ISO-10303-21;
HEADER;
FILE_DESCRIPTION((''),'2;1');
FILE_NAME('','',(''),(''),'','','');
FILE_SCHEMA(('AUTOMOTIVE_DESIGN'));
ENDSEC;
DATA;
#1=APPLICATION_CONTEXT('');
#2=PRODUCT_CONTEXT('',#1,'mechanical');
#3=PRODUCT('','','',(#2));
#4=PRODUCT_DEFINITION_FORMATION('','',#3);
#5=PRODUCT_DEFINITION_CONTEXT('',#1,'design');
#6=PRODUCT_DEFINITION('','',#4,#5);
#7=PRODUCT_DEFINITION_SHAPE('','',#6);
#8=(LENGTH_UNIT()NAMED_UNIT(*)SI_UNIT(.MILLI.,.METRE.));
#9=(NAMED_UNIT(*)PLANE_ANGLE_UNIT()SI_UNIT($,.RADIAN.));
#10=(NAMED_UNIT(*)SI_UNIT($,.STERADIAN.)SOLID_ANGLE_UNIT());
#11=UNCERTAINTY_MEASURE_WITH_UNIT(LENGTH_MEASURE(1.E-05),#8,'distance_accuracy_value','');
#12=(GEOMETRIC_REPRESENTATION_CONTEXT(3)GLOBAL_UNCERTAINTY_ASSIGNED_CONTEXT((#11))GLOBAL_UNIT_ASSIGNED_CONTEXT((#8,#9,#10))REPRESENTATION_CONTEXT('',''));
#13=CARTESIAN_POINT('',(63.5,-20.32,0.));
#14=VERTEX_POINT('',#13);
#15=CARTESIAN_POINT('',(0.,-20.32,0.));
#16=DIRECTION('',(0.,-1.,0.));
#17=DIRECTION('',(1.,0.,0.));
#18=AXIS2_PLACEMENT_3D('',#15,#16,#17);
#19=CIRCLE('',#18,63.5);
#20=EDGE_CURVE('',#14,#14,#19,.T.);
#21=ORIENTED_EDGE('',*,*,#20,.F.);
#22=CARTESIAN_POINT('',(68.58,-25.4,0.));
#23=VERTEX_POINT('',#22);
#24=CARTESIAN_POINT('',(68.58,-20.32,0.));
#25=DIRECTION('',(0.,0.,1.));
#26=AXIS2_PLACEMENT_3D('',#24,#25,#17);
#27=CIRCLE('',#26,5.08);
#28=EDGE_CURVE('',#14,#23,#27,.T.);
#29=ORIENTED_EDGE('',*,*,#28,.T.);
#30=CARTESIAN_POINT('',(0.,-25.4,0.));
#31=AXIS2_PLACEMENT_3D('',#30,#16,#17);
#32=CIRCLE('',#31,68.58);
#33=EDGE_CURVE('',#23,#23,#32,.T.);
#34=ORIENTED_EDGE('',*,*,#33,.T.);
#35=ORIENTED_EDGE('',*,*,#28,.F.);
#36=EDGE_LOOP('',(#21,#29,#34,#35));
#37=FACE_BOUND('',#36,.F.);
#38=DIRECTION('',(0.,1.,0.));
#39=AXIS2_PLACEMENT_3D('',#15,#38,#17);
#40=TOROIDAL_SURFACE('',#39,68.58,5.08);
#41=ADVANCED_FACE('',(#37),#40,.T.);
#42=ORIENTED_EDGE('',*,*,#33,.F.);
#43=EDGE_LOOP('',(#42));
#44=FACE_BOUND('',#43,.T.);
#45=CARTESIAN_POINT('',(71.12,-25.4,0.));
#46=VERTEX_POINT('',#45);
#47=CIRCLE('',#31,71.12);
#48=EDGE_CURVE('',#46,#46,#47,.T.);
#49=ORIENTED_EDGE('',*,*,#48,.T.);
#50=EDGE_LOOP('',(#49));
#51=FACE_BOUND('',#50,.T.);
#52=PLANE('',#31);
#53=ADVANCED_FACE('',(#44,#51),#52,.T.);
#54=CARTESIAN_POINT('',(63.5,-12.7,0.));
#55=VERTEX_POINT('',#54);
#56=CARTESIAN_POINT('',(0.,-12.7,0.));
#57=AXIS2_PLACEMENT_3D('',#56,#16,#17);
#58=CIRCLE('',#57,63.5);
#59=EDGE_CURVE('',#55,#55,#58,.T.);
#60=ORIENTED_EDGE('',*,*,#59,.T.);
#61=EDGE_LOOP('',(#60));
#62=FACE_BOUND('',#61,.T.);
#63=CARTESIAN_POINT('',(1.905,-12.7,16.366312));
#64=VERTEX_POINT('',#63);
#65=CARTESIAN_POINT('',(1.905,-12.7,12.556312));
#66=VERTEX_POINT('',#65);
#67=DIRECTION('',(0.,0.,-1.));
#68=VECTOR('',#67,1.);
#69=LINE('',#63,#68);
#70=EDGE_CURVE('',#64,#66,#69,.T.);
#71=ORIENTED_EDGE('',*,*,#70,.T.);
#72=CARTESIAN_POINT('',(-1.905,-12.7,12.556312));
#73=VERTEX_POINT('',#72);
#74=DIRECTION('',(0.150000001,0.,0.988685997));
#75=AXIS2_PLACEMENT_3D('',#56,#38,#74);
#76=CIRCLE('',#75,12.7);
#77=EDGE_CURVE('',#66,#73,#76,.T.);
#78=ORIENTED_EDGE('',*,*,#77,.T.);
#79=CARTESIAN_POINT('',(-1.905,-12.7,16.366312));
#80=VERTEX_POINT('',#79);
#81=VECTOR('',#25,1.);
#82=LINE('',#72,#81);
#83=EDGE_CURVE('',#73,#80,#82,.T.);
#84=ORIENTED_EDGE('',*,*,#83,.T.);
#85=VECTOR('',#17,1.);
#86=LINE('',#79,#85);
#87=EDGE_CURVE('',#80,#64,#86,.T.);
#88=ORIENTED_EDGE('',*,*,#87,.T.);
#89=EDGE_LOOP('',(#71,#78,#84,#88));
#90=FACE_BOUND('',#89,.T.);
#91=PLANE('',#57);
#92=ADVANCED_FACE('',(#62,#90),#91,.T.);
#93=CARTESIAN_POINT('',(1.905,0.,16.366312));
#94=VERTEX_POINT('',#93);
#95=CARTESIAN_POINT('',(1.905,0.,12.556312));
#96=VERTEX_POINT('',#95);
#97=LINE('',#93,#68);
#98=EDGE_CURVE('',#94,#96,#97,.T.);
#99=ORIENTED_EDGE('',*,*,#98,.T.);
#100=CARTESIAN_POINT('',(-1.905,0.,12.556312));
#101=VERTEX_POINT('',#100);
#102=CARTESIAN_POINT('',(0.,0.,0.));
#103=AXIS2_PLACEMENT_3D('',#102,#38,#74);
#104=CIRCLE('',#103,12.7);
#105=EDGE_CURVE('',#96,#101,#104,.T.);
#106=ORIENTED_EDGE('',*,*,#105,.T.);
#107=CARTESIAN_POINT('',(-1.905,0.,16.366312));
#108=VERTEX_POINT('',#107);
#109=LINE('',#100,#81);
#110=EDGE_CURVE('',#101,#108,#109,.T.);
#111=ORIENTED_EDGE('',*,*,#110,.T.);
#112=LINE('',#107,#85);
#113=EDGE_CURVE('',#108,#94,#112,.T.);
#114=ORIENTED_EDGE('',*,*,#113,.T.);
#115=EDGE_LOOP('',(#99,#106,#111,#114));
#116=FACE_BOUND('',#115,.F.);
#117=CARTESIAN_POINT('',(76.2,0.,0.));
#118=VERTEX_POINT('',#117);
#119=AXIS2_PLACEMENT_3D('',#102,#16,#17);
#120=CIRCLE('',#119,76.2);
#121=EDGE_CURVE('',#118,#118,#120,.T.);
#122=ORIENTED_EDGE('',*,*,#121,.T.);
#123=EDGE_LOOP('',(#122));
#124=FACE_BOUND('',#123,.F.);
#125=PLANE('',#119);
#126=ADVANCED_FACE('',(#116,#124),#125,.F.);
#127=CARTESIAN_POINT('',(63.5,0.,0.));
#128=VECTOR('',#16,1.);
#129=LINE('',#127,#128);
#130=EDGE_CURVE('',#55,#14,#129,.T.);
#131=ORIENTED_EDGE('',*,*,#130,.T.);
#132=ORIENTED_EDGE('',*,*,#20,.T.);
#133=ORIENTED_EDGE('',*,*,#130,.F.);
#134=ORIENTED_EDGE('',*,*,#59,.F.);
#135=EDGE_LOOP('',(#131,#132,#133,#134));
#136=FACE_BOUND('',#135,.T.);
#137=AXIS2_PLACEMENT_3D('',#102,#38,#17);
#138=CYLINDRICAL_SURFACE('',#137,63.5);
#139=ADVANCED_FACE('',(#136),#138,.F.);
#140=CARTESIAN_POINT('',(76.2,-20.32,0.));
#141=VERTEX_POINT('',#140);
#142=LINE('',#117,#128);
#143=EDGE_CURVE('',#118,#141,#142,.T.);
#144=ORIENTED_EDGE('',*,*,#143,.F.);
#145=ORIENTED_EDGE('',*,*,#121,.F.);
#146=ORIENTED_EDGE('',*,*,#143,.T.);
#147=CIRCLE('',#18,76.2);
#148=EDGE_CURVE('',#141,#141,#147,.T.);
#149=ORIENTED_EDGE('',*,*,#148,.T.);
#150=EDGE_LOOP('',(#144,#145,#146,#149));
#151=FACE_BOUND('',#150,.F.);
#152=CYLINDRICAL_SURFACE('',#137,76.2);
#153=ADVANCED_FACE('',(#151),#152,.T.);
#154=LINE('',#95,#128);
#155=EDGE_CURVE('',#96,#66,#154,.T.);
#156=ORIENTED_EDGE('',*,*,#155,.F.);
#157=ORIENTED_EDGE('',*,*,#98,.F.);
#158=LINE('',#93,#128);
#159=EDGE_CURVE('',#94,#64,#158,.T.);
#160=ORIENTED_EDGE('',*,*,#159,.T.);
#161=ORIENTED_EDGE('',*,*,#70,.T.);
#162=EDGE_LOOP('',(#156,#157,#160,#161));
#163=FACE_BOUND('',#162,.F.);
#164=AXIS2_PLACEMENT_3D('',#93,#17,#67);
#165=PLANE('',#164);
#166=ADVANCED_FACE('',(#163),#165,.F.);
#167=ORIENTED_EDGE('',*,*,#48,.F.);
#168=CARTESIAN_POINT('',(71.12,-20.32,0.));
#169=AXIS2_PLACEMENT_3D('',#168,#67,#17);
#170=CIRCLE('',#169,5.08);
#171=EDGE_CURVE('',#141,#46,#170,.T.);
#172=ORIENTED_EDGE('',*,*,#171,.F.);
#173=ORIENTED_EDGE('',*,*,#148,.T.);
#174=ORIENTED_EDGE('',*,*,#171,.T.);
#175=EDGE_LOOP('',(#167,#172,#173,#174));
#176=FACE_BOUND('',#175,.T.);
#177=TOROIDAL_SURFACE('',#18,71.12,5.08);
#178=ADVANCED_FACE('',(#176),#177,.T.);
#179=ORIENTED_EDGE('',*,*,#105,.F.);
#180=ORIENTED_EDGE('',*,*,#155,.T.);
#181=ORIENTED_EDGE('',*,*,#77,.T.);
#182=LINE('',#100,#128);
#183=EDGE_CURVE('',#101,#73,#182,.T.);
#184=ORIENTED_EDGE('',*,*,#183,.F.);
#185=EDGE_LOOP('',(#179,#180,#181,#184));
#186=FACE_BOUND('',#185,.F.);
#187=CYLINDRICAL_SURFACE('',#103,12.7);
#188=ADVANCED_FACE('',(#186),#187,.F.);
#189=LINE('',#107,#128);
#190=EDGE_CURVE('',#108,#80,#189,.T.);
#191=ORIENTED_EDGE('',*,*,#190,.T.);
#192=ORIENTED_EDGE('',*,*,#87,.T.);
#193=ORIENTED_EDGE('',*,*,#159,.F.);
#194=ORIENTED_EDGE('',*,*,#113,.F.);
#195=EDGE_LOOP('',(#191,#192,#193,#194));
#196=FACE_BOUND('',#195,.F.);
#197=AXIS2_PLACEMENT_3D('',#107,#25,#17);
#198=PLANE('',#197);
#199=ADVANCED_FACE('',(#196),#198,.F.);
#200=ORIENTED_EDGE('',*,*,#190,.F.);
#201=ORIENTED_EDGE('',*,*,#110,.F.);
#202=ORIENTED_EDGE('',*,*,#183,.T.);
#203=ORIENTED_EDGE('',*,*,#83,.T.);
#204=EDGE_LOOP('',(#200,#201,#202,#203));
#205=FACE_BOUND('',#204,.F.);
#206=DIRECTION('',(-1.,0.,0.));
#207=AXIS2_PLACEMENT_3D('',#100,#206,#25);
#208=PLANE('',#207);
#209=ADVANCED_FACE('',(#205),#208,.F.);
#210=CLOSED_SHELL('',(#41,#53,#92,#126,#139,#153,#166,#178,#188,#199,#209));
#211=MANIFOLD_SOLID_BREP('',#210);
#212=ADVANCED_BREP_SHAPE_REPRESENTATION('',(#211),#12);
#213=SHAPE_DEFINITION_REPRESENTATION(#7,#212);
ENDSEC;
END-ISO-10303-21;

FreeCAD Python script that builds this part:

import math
import FreeCAD as App
import Part
import Sketcher

V = App.Vector
Q = App.Units.Quantity


def edges_at(feature, points):
    """Names of the edges that pass closest to the given points."""
    edges = feature.Shape.Edges
    near = lambda p: min(range(len(edges)), key=lambda i: edges[i].distToShape(Part.Vertex(*p))[0])
    return sorted({f"Edge{near(p) + 1}" for p in points})

doc = App.newDocument("Part")
body = doc.addObject("PartDesign::Body", "Body")

sketch1 = body.newObject("Sketcher::SketchObject", "Sketch")
sketch1.AttachmentSupport = (doc.getObject("XZ_Plane"), [""])
sketch1.MapMode = "FlatFace"
sketch1.addGeometry(Part.Circle(V(0, 0, 0), V(0, 0, 1), 76), False)
sketch1.addGeometry(Part.Circle(V(0, 0, 0), V(0, 0, 1), 64), False)
sketch1.addConstraint(Sketcher.Constraint("Coincident", 0, 3, -1, 1))
sketch1.addConstraint(Sketcher.Constraint("Coincident", 1, 3, -1, 1))
sketch1.addConstraint(Sketcher.Constraint("Diameter", 0, Q("6 in")))
sketch1.addConstraint(Sketcher.Constraint("Diameter", 1, Q("5 in")))
pad1 = body.newObject("PartDesign::Pad", "Pad")
pad1.Profile = sketch1
pad1.Length = Q("1 in")

sketch2 = body.newObject("Sketcher::SketchObject", "Sketch001")
sketch2.AttachmentSupport = (doc.getObject("XZ_Plane"), [""])
sketch2.MapMode = "FlatFace"
sketch2.addGeometry(Part.Circle(V(0, 0, 0), V(0, 0, 1), 63.5), False)
sketch2.addGeometry(Part.LineSegment(V(1.9, 16.4, 0), V(1.9, 12.6, 0)), False)
sketch2.addGeometry(Part.ArcOfCircle(Part.Circle(V(0, 0, 0), V(0, 0, 1), 12.7), math.radians(99), math.radians(441)), False)
sketch2.addGeometry(Part.LineSegment(V(-1.9, 12.6, 0), V(-1.9, 16.4, 0)), False)
sketch2.addGeometry(Part.LineSegment(V(-1.9, 16.4, 0), V(1.9, 16.4, 0)), False)
sketch2.addConstraint(Sketcher.Constraint("Coincident", 1, 2, 2, 2))
sketch2.addConstraint(Sketcher.Constraint("Coincident", 2, 1, 3, 1))
sketch2.addConstraint(Sketcher.Constraint("Coincident", 3, 2, 4, 1))
sketch2.addConstraint(Sketcher.Constraint("Coincident", 4, 2, 1, 1))
sketch2.addConstraint(Sketcher.Constraint("Vertical", 1))
sketch2.addConstraint(Sketcher.Constraint("Vertical", 3))
sketch2.addConstraint(Sketcher.Constraint("Horizontal", 4))
sketch2.addConstraint(Sketcher.Constraint("Coincident", 0, 3, -1, 1))
sketch2.addConstraint(Sketcher.Constraint("Coincident", 2, 3, -1, 1))
sketch2.addConstraint(Sketcher.Constraint("Horizontal", 1, 2, 2, 1))
sketch2.addConstraint(Sketcher.Constraint("Equal", 4, 1))
sketch2.addConstraint(Sketcher.Constraint("Diameter", 0, Q("5 in")))
sketch2.addConstraint(Sketcher.Constraint("Radius", 2, Q("0.5 in")))
sketch2.addConstraint(Sketcher.Constraint("DistanceX", 4, 1, 4, 2, Q("0.15 in")))
pad2 = body.newObject("PartDesign::Pad", "Pad001")
pad2.Profile = sketch2
pad2.Length = Q("0.5 in")
doc.recompute()

fillet = body.newObject("PartDesign::Fillet", "Fillet")
fillet.Base = (pad2, edges_at(pad2, [(-76.2, -25.4, 0), (-63.5, -25.4, 0)]))
fillet.Radius = Q("0.2 in")

doc.recompute()
